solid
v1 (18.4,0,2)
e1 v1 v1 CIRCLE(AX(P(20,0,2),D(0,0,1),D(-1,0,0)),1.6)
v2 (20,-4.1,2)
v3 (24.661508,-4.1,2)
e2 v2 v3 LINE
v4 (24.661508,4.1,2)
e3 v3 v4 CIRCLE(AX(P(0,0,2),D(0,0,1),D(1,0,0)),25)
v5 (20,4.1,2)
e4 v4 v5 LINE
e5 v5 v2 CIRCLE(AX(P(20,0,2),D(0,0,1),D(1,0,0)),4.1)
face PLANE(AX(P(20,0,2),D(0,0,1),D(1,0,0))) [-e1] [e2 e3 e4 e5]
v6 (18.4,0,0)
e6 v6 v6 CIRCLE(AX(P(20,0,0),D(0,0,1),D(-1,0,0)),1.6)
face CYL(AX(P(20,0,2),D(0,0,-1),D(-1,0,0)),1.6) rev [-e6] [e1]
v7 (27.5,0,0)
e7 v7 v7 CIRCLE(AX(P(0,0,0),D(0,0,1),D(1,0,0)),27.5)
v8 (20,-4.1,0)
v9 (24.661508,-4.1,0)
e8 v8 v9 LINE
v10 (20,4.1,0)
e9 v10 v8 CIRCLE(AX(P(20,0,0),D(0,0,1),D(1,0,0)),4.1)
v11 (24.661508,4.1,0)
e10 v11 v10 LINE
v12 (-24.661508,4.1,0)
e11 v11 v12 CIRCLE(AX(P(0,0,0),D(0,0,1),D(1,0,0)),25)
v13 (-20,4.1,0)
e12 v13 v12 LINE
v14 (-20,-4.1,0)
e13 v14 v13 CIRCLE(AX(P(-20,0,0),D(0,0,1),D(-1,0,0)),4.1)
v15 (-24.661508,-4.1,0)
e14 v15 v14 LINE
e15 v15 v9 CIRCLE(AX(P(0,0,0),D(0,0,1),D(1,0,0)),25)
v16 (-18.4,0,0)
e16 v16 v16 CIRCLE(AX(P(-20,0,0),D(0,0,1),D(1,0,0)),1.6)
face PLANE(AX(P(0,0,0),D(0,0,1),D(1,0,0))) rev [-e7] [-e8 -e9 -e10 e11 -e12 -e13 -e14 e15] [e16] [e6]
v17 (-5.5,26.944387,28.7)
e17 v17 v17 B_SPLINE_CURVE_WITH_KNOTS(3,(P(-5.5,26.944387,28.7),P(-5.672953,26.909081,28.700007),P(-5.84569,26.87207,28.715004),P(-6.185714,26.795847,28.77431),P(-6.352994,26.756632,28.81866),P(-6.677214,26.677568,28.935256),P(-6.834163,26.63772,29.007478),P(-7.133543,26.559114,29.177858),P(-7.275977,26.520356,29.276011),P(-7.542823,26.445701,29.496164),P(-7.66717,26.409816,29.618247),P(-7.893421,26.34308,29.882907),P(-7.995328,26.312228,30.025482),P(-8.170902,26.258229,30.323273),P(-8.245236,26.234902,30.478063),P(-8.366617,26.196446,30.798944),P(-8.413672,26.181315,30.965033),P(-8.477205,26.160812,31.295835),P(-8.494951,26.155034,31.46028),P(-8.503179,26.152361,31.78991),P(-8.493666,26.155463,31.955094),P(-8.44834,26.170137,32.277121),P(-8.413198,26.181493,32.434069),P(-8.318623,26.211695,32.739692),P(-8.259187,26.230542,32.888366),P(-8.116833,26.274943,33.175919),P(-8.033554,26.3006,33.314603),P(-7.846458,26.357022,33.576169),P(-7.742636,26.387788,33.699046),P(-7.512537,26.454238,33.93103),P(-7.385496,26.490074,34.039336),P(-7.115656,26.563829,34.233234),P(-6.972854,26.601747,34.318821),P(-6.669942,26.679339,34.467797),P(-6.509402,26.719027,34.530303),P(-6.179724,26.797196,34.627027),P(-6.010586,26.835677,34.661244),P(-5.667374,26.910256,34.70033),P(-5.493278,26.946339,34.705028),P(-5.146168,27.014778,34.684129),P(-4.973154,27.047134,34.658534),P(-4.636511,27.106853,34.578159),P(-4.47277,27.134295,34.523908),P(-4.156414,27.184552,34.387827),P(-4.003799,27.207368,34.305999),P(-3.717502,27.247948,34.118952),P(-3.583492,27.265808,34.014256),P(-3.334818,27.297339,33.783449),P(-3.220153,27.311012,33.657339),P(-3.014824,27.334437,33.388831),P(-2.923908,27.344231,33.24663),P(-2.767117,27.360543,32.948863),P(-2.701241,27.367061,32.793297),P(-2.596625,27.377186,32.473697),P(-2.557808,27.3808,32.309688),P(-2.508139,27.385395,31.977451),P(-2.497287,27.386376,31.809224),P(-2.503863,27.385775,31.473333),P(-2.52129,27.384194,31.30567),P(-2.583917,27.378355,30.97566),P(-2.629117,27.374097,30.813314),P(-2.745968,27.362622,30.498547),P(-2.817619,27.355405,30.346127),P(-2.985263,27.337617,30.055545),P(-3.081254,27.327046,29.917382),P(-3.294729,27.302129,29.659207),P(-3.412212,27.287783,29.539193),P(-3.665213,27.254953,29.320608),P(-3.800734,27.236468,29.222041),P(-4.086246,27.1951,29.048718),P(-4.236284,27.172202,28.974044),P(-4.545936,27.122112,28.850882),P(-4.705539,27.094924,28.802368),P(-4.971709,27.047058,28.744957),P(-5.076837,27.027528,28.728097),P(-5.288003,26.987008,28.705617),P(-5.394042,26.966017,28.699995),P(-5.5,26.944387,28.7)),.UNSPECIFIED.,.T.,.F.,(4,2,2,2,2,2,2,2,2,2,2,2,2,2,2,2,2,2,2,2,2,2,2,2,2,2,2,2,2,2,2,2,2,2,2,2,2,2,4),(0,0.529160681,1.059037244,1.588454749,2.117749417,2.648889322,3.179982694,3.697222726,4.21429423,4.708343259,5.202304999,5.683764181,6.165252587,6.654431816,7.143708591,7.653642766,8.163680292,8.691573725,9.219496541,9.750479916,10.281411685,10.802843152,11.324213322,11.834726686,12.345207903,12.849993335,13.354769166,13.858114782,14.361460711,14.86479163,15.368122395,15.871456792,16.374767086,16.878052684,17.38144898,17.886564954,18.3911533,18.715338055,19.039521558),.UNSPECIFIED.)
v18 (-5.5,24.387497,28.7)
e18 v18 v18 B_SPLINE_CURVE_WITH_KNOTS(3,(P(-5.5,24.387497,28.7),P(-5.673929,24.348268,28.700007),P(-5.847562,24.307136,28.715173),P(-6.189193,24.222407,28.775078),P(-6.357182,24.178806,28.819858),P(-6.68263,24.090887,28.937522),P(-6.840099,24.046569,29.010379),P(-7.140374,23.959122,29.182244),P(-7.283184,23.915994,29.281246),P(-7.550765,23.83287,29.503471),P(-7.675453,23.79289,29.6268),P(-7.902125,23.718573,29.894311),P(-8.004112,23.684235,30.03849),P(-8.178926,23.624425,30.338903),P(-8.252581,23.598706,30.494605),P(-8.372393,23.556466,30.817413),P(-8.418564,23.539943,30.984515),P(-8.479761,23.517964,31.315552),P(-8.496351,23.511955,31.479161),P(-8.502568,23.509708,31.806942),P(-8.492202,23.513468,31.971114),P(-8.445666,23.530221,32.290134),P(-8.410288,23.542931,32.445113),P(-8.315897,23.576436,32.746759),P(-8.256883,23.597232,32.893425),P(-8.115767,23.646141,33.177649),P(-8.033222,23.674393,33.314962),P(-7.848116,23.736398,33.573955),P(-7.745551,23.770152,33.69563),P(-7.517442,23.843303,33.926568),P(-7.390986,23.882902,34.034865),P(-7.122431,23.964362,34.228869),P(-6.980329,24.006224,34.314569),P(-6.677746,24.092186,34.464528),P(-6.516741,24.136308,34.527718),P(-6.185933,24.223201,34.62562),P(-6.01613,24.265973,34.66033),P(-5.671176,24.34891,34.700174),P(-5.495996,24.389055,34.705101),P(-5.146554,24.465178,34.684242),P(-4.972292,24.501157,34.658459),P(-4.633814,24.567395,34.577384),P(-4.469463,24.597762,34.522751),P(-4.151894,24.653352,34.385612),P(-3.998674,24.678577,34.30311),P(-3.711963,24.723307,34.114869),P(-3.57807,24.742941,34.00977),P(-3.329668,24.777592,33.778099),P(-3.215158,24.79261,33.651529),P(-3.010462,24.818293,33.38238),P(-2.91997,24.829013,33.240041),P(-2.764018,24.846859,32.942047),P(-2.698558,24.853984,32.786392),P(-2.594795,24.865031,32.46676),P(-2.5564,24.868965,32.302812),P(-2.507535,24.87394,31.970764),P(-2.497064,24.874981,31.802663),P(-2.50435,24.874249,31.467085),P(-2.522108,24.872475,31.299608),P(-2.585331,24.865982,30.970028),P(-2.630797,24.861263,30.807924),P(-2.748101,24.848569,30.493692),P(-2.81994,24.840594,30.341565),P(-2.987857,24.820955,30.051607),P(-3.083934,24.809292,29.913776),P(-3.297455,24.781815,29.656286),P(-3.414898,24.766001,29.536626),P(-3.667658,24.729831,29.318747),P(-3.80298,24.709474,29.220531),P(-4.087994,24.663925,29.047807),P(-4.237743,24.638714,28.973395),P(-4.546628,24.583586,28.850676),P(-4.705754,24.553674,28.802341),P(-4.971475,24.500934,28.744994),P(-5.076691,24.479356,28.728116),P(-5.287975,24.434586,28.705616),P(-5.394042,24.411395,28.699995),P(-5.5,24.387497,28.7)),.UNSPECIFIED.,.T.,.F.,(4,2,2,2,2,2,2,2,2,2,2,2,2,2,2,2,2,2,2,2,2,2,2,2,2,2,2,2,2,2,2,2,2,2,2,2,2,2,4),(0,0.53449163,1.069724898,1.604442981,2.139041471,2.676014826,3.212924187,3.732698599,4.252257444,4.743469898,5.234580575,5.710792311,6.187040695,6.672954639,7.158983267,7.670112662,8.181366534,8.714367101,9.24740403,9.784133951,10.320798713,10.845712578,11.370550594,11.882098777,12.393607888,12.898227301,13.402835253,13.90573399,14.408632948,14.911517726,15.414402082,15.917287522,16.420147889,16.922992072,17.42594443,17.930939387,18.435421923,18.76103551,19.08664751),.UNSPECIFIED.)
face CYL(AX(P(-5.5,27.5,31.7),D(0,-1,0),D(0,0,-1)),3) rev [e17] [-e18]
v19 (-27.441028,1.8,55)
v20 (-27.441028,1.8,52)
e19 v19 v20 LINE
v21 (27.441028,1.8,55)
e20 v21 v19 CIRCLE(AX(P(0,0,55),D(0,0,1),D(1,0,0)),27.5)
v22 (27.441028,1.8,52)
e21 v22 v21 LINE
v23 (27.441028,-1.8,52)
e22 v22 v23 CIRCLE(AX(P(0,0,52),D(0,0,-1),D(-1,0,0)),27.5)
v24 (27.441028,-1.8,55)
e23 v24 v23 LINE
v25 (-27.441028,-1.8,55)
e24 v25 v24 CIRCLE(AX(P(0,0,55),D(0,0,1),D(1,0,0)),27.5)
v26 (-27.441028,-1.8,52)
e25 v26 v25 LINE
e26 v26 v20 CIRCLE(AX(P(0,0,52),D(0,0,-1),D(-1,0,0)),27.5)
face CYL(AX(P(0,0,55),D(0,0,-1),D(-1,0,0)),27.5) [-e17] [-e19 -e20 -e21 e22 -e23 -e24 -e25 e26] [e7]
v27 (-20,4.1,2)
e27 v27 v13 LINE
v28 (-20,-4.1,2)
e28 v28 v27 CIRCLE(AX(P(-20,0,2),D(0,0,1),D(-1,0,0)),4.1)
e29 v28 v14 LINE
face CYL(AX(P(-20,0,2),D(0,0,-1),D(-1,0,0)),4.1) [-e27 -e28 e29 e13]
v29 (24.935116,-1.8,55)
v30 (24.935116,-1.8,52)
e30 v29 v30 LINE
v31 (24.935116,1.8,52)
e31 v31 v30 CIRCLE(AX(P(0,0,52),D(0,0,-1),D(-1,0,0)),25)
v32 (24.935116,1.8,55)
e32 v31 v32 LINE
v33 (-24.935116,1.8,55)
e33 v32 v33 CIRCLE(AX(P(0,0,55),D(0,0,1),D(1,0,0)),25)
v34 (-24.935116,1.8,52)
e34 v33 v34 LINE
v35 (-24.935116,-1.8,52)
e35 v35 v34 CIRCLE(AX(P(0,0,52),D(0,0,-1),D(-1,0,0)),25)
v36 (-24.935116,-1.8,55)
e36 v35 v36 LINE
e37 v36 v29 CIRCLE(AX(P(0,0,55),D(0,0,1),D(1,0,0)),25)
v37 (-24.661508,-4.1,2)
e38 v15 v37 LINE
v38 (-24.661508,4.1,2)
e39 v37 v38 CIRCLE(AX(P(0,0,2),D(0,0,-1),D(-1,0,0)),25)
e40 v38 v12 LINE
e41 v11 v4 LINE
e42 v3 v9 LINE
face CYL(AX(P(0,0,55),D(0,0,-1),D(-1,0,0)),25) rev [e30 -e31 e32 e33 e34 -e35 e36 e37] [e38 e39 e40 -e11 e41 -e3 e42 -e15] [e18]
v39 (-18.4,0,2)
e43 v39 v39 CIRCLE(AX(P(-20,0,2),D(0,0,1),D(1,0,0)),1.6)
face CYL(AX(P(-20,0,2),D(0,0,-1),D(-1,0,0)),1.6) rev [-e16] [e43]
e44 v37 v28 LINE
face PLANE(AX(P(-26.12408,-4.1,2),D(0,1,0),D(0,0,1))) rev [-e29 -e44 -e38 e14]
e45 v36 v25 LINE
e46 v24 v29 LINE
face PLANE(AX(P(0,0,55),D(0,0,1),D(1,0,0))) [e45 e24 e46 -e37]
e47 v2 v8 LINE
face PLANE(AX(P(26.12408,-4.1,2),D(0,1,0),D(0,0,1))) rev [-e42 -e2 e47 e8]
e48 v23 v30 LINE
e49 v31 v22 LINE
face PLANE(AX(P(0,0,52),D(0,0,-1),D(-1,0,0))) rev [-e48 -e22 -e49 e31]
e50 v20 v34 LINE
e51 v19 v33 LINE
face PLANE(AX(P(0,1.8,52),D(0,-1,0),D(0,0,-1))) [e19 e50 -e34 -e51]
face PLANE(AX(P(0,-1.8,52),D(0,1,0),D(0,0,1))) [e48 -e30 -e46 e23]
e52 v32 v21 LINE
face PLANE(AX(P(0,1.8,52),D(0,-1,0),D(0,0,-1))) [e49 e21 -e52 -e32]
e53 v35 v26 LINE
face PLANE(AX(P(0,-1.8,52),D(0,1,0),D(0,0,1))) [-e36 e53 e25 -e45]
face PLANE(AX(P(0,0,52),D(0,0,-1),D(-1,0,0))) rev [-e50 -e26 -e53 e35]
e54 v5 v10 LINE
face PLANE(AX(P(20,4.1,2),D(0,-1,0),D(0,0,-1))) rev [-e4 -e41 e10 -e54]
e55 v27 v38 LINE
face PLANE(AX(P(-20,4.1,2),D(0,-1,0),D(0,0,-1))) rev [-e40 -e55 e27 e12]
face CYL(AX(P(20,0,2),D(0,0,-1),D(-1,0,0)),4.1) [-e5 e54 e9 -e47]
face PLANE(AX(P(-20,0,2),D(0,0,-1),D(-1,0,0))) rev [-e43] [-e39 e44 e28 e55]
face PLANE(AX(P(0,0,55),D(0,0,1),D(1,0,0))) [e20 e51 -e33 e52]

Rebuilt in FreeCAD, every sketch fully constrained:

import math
import FreeCAD as App
import Part
import Sketcher
from FreeCAD import Vector

doc = App.newDocument("Part")
params = doc.addObject("Spreadsheet::Sheet", "Params")
for row, (alias, value) in enumerate([
    ("sketch1_diameter", "55 mm"),
    ("sketch1_diameter2", "50 mm"),
    ("pad1_length", "55 mm"),
    ("sketch2_diameter", "3.2 mm"),
    ("sketch2_radius", "4.1 mm"),
    ("pad2_length", "2 mm"),
    ("sketch3_height", "3.6 mm"),
    ("pocket1_length", "3 mm"),
    ("sketch4_diameter", "6 mm"),
], start=1):
    params.set(f"A{row}", alias)
    params.set(f"B{row}", "=" + value)
    params.setAlias(f"B{row}", alias)

body = doc.addObject("PartDesign::Body", "Body")

sketch1 = body.newObject("Sketcher::SketchObject", "Sketch")
sketch1.AttachmentSupport = (doc.getObject("XY_Plane"), [""])
sketch1.MapMode = "FlatFace"
sketch1.addGeometry(Part.Circle(Vector(0, 0, 0), Vector(0, 0, 1), 28), False)
sketch1.addGeometry(Part.Circle(Vector(0, 0, 0), Vector(0, 0, 1), 25), False)
sketch1.addConstraint(Sketcher.Constraint("Coincident", 0, 3, -1, 1))
sketch1.addConstraint(Sketcher.Constraint("Coincident", 1, 3, -1, 1))
sketch1.addConstraint(Sketcher.Constraint("Diameter", 0, 55.0))
sketch1.addConstraint(Sketcher.Constraint("Diameter", 1, 50.0))
sketch1.setExpression("Constraints[2]", "Params.sketch1_diameter")
sketch1.setExpression("Constraints[3]", "Params.sketch1_diameter2")
pad1 = body.newObject("PartDesign::Pad", "Pad")
pad1.Profile = sketch1
pad1.setExpression("Length", "Params.pad1_length")

sketch2 = body.newObject("Sketcher::SketchObject", "Sketch001")
sketch2.AttachmentSupport = (doc.getObject("XY_Plane"), [""])
sketch2.MapMode = "FlatFace"
sketch2.addGeometry(Part.LineSegment(Vector(-20, 4.1, 0), Vector(-26.1, 4.1, 0)), False)
sketch2.addGeometry(Part.LineSegment(Vector(-26.1, 4.1, 0), Vector(-26.1, -4.1, 0)), False)
sketch2.addGeometry(Part.LineSegment(Vector(-26.1, -4.1, 0), Vector(-20, -4.1, 0)), False)
sketch2.addGeometry(Part.ArcOfCircle(Part.Circle(Vector(-20, 0, 0), Vector(0, 0, 1), 4.1), math.radians(-90), math.radians(90)), False)
sketch2.addGeometry(Part.Circle(Vector(-20, 0, 0), Vector(0, 0, 1), 1.6), False)
sketch2.addGeometry(Part.LineSegment(Vector(20, -4.1, 0), Vector(26.1, -4.1, 0)), False)
sketch2.addGeometry(Part.LineSegment(Vector(26.1, -4.1, 0), Vector(26.1, 4.1, 0)), False)
sketch2.addGeometry(Part.LineSegment(Vector(26.1, 4.1, 0), Vector(20, 4.1, 0)), False)
sketch2.addGeometry(Part.ArcOfCircle(Part.Circle(Vector(20, 0, 0), Vector(0, 0, 1), 4.1), math.radians(90), math.radians(270)), False)
sketch2.addGeometry(Part.Circle(Vector(20, 0, 0), Vector(0, 0, 1), 1.6), False)
sketch2.addConstraint(Sketcher.Constraint("Coincident", 0, 2, 1, 1))
sketch2.addConstraint(Sketcher.Constraint("Coincident", 1, 2, 2, 1))
sketch2.addConstraint(Sketcher.Constraint("Tangent", 2, 2, 3, 1))
sketch2.addConstraint(Sketcher.Constraint("Tangent", 3, 2, 0, 1))
sketch2.addConstraint(Sketcher.Constraint("Coincident", 5, 2, 6, 1))
sketch2.addConstraint(Sketcher.Constraint("Coincident", 6, 2, 7, 1))
sketch2.addConstraint(Sketcher.Constraint("Tangent", 7, 2, 8, 1))
sketch2.addConstraint(Sketcher.Constraint("Tangent", 8, 2, 5, 1))
sketch2.addConstraint(Sketcher.Constraint("Horizontal", 0))
sketch2.addConstraint(Sketcher.Constraint("Vertical", 1))
sketch2.addConstraint(Sketcher.Constraint("Horizontal", 2))
sketch2.addConstraint(Sketcher.Constraint("Horizontal", 5))
sketch2.addConstraint(Sketcher.Constraint("Vertical", 6))
sketch2.addConstraint(Sketcher.Constraint("Horizontal", 7))
sketch2.addConstraint(Sketcher.Constraint("Coincident", 4, 3, 3, 3))
sketch2.addConstraint(Sketcher.Constraint("Coincident", 9, 3, 8, 3))
sketch2.addConstraint(Sketcher.Constraint("Equal", 3, 8))
sketch2.addConstraint(Sketcher.Constraint("Equal", 4, 9))
sketch2.addConstraint(Sketcher.Constraint("Symmetric", 3, 3, 8, 3, -1, 1))
sketch2.addConstraint(Sketcher.Constraint("Symmetric", 1, 2, 5, 2, -2))
sketch2.addConstraint(Sketcher.Constraint("Diameter", 4, 3.2))
sketch2.addConstraint(Sketcher.Constraint("Radius", 3, 4.1))
sketch2.addConstraint(Sketcher.Constraint("DistanceX", 3, 3, -1, 1, 20.0))
sketch2.addConstraint(Sketcher.Constraint("DistanceX", 0, 2, 0, 1, 6.12408))
sketch2.setExpression("Constraints[20]", "Params.sketch2_diameter")
sketch2.setExpression("Constraints[21]", "Params.sketch2_radius")
pad2 = body.newObject("PartDesign::Pad", "Pad001")
pad2.Profile = sketch2
pad2.setExpression("Length", "Params.pad2_length")

sketch3 = body.newObject("Sketcher::SketchObject", "Sketch002")
sketch3.AttachmentSupport = (doc.getObject("XY_Plane"), [""])
sketch3.MapMode = "FlatFace"
sketch3.AttachmentOffset = App.Placement(Vector(0, 0, 55), App.Rotation())
sketch3.addGeometry(Part.LineSegment(Vector(-29, 1.8, 0), Vector(-29, -1.8, 0)), False)
sketch3.addGeometry(Part.LineSegment(Vector(-29, -1.8, 0), Vector(31.5, -1.8, 0)), False)
sketch3.addGeometry(Part.LineSegment(Vector(31.5, -1.8, 0), Vector(31.5, 1.8, 0)), False)
sketch3.addGeometry(Part.LineSegment(Vector(31.5, 1.8, 0), Vector(-29, 1.8, 0)), False)
sketch3.addConstraint(Sketcher.Constraint("Coincident", 0, 2, 1, 1))
sketch3.addConstraint(Sketcher.Constraint("Coincident", 1, 2, 2, 1))
sketch3.addConstraint(Sketcher.Constraint("Coincident", 2, 2, 3, 1))
sketch3.addConstraint(Sketcher.Constraint("Coincident", 3, 2, 0, 1))
sketch3.addConstraint(Sketcher.Constraint("Vertical", 0))
sketch3.addConstraint(Sketcher.Constraint("Horizontal", 1))
sketch3.addConstraint(Sketcher.Constraint("Vertical", 2))
sketch3.addConstraint(Sketcher.Constraint("Horizontal", 3))
sketch3.addConstraint(Sketcher.Constraint("DistanceY", 0, 2, 0, 1, 3.6))
sketch3.addConstraint(Sketcher.Constraint("DistanceY", 0, 2, -1, 1, 1.8))
sketch3.addConstraint(Sketcher.Constraint("DistanceX", 1, 1, 1, 2, 60.535746))
sketch3.addConstraint(Sketcher.Constraint("DistanceX", 0, 2, -1, 1, 29.03245))
sketch3.setExpression("Constraints[8]", "Params.sketch3_height")
pocket1 = body.newObject("PartDesign::Pocket", "Pocket")
pocket1.Profile = sketch3
pocket1.setExpression("Length", "Params.pocket1_length")

sketch4 = body.newObject("Sketcher::SketchObject", "Sketch003")
sketch4.AttachmentSupport = (doc.getObject("XZ_Plane"), [""])
sketch4.MapMode = "FlatFace"
sketch4.addGeometry(Part.Circle(Vector(-5.5, 31.7, 0), Vector(0, 0, 1), 3), False)
sketch4.addConstraint(Sketcher.Constraint("Diameter", 0, 6.0))
sketch4.addConstraint(Sketcher.Constraint("DistanceX", 0, 3, -1, 1, 5.5))
sketch4.addConstraint(Sketcher.Constraint("DistanceY", -1, 1, 0, 3, 31.7))
sketch4.setExpression("Constraints[0]", "Params.sketch4_diameter")
pocket2 = body.newObject("PartDesign::Pocket", "Pocket001")
pocket2.Profile = sketch4
pocket2.Type = "ThroughAll"

doc.recompute()
